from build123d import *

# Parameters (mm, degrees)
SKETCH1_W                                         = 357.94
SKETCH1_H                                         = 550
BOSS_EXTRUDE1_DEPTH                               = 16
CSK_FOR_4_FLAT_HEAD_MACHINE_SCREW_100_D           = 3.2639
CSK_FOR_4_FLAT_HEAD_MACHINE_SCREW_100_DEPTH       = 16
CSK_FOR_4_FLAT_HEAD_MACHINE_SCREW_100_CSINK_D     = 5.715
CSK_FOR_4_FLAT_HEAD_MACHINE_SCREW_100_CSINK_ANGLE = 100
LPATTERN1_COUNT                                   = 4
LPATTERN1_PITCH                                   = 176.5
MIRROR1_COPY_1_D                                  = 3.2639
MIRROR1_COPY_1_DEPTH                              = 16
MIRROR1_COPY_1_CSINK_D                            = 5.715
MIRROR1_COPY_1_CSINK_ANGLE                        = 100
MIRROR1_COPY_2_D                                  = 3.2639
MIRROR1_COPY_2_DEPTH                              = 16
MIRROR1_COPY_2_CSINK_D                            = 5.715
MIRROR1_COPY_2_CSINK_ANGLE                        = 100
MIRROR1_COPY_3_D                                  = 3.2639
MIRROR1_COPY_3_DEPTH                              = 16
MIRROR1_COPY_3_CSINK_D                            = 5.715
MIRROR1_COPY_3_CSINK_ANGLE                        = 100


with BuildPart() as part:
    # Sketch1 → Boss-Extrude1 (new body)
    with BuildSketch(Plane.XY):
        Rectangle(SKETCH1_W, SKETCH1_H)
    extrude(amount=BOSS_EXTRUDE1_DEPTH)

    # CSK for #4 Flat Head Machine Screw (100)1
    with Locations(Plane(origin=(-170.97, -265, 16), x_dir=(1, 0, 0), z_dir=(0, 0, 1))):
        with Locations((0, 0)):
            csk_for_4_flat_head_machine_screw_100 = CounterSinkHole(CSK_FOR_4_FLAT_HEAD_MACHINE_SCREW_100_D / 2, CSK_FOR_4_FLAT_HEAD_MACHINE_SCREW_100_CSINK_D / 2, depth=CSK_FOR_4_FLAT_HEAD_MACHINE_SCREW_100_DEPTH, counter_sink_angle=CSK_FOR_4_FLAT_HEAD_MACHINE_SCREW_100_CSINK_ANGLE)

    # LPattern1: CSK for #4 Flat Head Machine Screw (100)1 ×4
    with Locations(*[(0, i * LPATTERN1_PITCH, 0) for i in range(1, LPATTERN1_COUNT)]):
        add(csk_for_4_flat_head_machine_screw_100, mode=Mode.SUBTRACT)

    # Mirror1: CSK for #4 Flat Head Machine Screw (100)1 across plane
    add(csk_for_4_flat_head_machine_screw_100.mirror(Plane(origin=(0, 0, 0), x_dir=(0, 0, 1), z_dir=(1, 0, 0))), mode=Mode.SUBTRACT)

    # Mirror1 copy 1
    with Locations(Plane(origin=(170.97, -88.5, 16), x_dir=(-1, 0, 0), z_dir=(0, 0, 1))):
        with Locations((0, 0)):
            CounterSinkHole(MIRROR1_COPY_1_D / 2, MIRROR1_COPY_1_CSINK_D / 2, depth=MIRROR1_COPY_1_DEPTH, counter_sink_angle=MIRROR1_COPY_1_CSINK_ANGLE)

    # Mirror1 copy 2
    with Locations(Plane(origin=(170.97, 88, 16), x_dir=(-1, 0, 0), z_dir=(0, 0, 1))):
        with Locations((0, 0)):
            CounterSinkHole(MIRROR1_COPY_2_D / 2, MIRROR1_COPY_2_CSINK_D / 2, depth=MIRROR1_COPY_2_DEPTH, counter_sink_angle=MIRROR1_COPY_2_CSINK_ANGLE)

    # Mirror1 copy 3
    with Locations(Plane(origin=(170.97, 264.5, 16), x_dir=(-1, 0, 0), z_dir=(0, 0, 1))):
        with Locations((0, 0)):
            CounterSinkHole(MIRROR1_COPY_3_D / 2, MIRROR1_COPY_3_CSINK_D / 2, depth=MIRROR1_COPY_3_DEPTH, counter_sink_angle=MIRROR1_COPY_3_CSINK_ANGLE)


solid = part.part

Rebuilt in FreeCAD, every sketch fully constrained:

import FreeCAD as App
import Part
import Sketcher

V = App.Vector

doc = App.newDocument("Part")
body = doc.addObject("PartDesign::Body", "Body")

sketch1 = body.newObject("Sketcher::SketchObject", "Sketch")
sketch1.AttachmentSupport = (doc.getObject("XY_Plane"), [""])
sketch1.MapMode = "FlatFace"
sketch1.addGeometry([
    Part.LineSegment(V(-178.97, 275, 0), V(-178.97, -275, 0)),
    Part.LineSegment(V(-178.97, -275, 0), V(178.97, -275, 0)),
    Part.LineSegment(V(178.97, -275, 0), V(178.97, 275, 0)),
    Part.LineSegment(V(178.97, 275, 0), V(-178.97, 275, 0)),
], False)
sketch1.addConstraint([
    Sketcher.Constraint("Coincident", 0, 2, 1, 1),
    Sketcher.Constraint("Coincident", 1, 2, 2, 1),
    Sketcher.Constraint("Coincident", 2, 2, 3, 1),
    Sketcher.Constraint("Coincident", 3, 2, 0, 1),
    Sketcher.Constraint("Vertical", 0),
    Sketcher.Constraint("Horizontal", 1),
    Sketcher.Constraint("Vertical", 2),
    Sketcher.Constraint("Horizontal", 3),
    Sketcher.Constraint("Symmetric", 0, 2, 2, 2, -1, 1),
    Sketcher.Constraint("DistanceY", 0, 2, 0, 1, 550.0),
    Sketcher.Constraint("DistanceX", 1, 1, 1, 2, 357.94),
])
pad1 = body.newObject("PartDesign::Pad", "Pad")
pad1.Profile = sketch1
pad1.Length = 16

sketch2 = body.newObject("Sketcher::SketchObject", "Sketch001")
sketch2.AttachmentSupport = (doc.getObject("XY_Plane"), [""])
sketch2.MapMode = "FlatFace"
sketch2.AttachmentOffset = App.Placement(V(0, 0, 16), App.Rotation())
sketch2.addGeometry(Part.Circle(V(-170.97, -265, 0), V(0, 0, 1), 1.63195), False)
sketch2.addConstraint([
    Sketcher.Constraint("DistanceY", 0, 3, -1, 1, 265.0),
    Sketcher.Constraint("Diameter", 0, 3.2639),
    Sketcher.Constraint("DistanceX", 0, 3, -1, 1, 170.97),
])
doc.recompute()
hole = body.newObject("PartDesign::Hole", "Hole")
hole.Profile = sketch2
hole.ThreadType = "None"
hole.Diameter = 3.2639
hole.DepthType = "Dimension"
hole.Depth = 16
hole.DrillPoint = "Flat"
hole.HoleCutType = "Countersink"
hole.HoleCutDiameter = 5.715
hole.HoleCutCountersinkAngle = 100
doc.recompute()

linearpattern = body.newObject("PartDesign::LinearPattern", "LinearPattern")
linearpattern.Originals = [hole]
linearpattern.Direction = (doc.getObject("Y_Axis"), [""])
linearpattern.Mode = "offset"
linearpattern.Offset = 176.5
linearpattern.Occurrences = 4
body.Tip = linearpattern
doc.recompute()

mirrored = body.newObject("PartDesign::Mirrored", "Mirrored")
mirrored.Originals = [hole]
mirrored.MirrorPlane = (doc.getObject("YZ_Plane"), [""])
body.Tip = mirrored

sketch3 = body.newObject("Sketcher::SketchObject", "Sketch002")
sketch3.AttachmentSupport = (doc.getObject("XY_Plane"), [""])
sketch3.MapMode = "FlatFace"
sketch3.AttachmentOffset = App.Placement(V(0, 0, 16), App.Rotation())
sketch3.addGeometry(Part.Circle(V(170.97, -88.5, 0), V(0, 0, 1), 1.63195), False)
sketch3.addConstraint([
    Sketcher.Constraint("Diameter", 0, 3.2639),
    Sketcher.Constraint("DistanceY", 0, 3, -1, 1, 88.5),
    Sketcher.Constraint("DistanceX", -1, 1, 0, 3, 170.97),
])
doc.recompute()
hole2 = body.newObject("PartDesign::Hole", "Hole001")
hole2.Profile = sketch3
hole2.ThreadType = "None"
hole2.Diameter = 3.2639
hole2.DepthType = "Dimension"
hole2.Depth = 16
hole2.DrillPoint = "Flat"
hole2.HoleCutType = "Countersink"
hole2.HoleCutDiameter = 5.715
hole2.HoleCutCountersinkAngle = 100

sketch4 = body.newObject("Sketcher::SketchObject", "Sketch003")
sketch4.AttachmentSupport = (doc.getObject("XY_Plane"), [""])
sketch4.MapMode = "FlatFace"
sketch4.AttachmentOffset = App.Placement(V(0, 0, 16), App.Rotation())
sketch4.addGeometry(Part.Circle(V(170.97, 88, 0), V(0, 0, 1), 1.63195), False)
sketch4.addConstraint([
    Sketcher.Constraint("DistanceY", -1, 1, 0, 3, 88.0),
    Sketcher.Constraint("Diameter", 0, 3.2639),
    Sketcher.Constraint("DistanceX", -1, 1, 0, 3, 170.97),
])
doc.recompute()
hole3 = body.newObject("PartDesign::Hole", "Hole002")
hole3.Profile = sketch4
hole3.ThreadType = "None"
hole3.Diameter = 3.2639
hole3.DepthType = "Dimension"
hole3.Depth = 16
hole3.DrillPoint = "Flat"
hole3.HoleCutType = "Countersink"
hole3.HoleCutDiameter = 5.715
hole3.HoleCutCountersinkAngle = 100

sketch5 = body.newObject("Sketcher::SketchObject", "Sketch004")
sketch5.AttachmentSupport = (doc.getObject("XY_Plane"), [""])
sketch5.MapMode = "FlatFace"
sketch5.AttachmentOffset = App.Placement(V(0, 0, 16), App.Rotation())
sketch5.addGeometry(Part.Circle(V(170.97, 264.5, 0), V(0, 0, 1), 1.63195), False)
sketch5.addConstraint([
    Sketcher.Constraint("Diameter", 0, 3.2639),
    Sketcher.Constraint("DistanceY", -1, 1, 0, 3, 264.5),
    Sketcher.Constraint("DistanceX", -1, 1, 0, 3, 170.97),
])
doc.recompute()
hole4 = body.newObject("PartDesign::Hole", "Hole003")
hole4.Profile = sketch5
hole4.ThreadType = "None"
hole4.Diameter = 3.2639
hole4.DepthType = "Dimension"
hole4.Depth = 16
hole4.DrillPoint = "Flat"
hole4.HoleCutType = "Countersink"
hole4.HoleCutDiameter = 5.715
hole4.HoleCutCountersinkAngle = 100

doc.recompute()
